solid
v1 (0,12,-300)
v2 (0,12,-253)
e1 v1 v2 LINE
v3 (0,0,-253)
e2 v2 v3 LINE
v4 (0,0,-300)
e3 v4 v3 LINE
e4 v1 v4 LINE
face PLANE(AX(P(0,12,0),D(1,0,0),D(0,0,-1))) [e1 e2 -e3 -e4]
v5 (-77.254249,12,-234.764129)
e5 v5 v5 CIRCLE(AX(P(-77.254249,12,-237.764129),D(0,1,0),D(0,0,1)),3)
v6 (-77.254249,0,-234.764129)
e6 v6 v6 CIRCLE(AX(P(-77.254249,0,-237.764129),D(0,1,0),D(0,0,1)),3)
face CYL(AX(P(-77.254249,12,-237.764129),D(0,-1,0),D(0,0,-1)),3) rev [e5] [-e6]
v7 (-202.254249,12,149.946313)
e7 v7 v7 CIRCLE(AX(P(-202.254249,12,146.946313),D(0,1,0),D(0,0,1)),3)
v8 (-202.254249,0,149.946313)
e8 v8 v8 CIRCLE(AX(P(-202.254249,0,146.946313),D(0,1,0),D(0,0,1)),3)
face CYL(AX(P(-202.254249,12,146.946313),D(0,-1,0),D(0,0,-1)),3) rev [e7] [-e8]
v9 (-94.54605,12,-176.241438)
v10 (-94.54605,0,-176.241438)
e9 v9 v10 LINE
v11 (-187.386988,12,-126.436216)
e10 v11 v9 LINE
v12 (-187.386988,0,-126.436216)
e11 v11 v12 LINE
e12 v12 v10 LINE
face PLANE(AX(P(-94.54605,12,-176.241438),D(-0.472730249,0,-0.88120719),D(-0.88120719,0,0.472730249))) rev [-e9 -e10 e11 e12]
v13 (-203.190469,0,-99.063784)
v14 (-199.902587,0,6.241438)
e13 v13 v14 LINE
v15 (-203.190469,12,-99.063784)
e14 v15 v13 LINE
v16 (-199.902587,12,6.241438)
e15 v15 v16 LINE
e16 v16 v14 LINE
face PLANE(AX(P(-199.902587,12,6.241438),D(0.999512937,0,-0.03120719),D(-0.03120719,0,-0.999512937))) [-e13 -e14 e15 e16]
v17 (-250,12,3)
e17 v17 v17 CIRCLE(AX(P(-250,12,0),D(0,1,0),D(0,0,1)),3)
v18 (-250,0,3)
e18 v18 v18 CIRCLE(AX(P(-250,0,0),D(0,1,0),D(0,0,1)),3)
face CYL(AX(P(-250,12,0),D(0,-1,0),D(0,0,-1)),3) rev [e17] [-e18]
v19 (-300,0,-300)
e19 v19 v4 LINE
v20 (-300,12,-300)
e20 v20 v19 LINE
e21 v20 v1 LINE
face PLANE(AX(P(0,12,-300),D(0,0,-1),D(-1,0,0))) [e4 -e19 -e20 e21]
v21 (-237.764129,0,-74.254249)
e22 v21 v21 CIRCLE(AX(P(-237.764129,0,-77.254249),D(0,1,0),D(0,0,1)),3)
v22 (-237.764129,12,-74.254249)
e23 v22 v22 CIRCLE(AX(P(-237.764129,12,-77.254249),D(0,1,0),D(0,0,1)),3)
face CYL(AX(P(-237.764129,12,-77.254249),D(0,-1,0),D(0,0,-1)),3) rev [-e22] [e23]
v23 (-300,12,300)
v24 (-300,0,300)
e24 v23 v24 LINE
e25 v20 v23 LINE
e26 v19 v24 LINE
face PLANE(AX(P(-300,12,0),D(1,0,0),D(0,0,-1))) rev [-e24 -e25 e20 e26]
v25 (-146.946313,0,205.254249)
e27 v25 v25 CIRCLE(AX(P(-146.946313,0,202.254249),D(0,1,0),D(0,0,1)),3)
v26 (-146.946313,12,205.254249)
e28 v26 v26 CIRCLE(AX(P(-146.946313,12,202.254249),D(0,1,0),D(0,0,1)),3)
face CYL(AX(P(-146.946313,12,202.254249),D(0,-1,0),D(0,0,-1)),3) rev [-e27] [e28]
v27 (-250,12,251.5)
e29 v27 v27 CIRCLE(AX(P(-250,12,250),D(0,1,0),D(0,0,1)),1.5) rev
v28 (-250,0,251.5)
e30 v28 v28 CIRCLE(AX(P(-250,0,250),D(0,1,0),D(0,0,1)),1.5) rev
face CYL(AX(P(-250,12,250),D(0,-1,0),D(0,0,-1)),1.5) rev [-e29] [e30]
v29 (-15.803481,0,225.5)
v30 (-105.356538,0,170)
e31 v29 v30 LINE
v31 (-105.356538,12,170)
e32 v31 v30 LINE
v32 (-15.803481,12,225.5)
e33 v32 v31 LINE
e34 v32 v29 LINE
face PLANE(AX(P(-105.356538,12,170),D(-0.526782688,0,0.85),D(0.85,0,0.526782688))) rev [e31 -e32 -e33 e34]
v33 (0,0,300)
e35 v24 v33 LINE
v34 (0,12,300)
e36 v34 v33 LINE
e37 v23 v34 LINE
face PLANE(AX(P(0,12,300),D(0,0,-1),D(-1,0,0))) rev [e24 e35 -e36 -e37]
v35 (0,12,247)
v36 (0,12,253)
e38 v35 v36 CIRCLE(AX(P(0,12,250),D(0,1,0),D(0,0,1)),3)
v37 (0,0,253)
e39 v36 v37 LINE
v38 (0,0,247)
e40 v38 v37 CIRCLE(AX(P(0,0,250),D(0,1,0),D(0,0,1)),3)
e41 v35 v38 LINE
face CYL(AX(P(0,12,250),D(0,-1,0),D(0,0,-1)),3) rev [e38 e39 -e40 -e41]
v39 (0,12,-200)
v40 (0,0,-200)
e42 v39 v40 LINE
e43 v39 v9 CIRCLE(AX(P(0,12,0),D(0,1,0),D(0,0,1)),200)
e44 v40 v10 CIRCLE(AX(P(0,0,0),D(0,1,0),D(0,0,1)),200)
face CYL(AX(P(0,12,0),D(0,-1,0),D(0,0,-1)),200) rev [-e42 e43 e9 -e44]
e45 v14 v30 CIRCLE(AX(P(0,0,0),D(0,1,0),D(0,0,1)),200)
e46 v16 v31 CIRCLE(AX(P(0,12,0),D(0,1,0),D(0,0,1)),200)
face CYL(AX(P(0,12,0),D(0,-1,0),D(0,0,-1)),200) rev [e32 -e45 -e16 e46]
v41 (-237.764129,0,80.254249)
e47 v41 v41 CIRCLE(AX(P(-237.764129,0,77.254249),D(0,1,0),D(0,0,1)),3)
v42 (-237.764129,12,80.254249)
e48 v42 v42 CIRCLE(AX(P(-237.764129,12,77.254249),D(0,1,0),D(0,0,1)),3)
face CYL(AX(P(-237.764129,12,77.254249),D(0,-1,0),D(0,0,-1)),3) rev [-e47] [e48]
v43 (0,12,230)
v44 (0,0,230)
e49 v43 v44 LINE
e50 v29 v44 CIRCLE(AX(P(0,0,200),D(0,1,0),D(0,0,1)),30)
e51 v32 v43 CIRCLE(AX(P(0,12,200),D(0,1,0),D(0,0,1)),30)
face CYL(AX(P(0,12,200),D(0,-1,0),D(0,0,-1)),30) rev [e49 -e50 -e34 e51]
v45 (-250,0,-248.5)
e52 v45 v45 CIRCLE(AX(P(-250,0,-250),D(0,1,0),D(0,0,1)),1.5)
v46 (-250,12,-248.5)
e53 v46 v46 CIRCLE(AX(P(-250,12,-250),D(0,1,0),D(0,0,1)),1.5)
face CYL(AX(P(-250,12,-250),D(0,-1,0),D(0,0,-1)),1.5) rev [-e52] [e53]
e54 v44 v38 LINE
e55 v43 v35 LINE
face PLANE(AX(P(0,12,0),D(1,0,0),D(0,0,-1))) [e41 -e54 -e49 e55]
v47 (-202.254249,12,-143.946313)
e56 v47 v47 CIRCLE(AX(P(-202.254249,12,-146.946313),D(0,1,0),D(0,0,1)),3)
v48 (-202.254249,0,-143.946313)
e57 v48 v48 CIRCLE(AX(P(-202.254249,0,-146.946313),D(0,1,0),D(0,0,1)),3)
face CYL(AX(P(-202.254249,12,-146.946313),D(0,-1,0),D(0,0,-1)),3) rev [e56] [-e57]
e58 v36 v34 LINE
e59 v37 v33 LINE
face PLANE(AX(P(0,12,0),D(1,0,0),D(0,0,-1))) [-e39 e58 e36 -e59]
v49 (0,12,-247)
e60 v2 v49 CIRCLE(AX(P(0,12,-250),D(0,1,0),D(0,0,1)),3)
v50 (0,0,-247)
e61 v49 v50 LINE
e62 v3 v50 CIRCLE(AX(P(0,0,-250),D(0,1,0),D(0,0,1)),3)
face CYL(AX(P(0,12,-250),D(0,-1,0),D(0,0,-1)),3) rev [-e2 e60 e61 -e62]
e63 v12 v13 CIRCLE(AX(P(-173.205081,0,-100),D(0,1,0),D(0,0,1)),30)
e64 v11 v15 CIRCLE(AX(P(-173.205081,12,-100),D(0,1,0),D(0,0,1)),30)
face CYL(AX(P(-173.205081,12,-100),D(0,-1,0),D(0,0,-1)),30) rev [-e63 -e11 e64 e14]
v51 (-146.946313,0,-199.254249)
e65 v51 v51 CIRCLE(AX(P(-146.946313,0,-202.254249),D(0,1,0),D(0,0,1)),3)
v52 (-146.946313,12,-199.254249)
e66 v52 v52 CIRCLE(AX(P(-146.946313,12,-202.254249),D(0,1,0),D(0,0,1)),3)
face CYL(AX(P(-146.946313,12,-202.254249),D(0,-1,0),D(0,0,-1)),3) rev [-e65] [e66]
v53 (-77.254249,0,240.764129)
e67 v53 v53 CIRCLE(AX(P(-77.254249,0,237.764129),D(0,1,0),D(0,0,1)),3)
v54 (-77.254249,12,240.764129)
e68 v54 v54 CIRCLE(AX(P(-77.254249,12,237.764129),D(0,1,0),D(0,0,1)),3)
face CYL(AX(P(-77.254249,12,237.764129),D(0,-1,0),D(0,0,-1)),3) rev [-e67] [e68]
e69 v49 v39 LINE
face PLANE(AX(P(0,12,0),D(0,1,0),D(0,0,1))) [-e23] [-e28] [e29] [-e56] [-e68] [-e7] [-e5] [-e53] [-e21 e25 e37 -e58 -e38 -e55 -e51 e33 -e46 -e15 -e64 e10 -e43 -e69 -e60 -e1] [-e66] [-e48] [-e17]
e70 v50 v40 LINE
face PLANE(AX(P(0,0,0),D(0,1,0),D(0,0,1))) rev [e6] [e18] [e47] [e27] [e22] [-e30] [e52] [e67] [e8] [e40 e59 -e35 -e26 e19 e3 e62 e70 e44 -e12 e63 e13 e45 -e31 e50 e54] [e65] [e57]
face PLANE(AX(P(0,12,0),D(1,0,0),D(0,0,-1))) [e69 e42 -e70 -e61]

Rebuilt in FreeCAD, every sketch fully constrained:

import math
import FreeCAD as App
import Part
import Sketcher

V = App.Vector

doc = App.newDocument("Part")
params = doc.addObject("Spreadsheet::Sheet", "Params")
for row, (alias, value) in enumerate([
    ("sketch1_diameter", "6 mm"),
    ("sketch1_diameter2", "3 mm"),
    ("sketch1_radius", "30 mm"),
    ("sketch1_radius2", "200 mm"),
    ("sketch1_width", "300 mm"),
    ("pad1_length", "12 mm"),
], start=1):
    params.set(f"A{row}", alias)
    params.set(f"B{row}", "=" + value)
    params.setAlias(f"B{row}", alias)

body = doc.addObject("PartDesign::Body", "Body")

# Sketch on XZ plane
sketch1 = body.newObject("Sketcher::SketchObject", "Sketch")
sketch1.AttachmentSupport = (doc.getObject("XZ_Plane"), [""])
sketch1.MapMode = "FlatFace"
sketch1.addGeometry(Part.LineSegment(V(-199.902587, 6.241438, 0), V(-203.190469, -99.063784, 0)), False)
sketch1.addGeometry(Part.ArcOfCircle(Part.Circle(V(-173.205081, -100, 0), V(0, 0, 1), 30), math.radians(178.211669), math.radians(241.788331)), False)
sketch1.addGeometry(Part.LineSegment(V(-187.386988, -126.436216, 0), V(-94.54605, -176.241438, 0)), False)
sketch1.addGeometry(Part.ArcOfCircle(Part.Circle(V(0, 0, 0), V(0, 0, 1), 200), math.radians(-118.211669), math.radians(-90)), False)
sketch1.addGeometry(Part.LineSegment(V(0, -200, 0), V(0, -247, 0)), False)
sketch1.addGeometry(Part.ArcOfCircle(Part.Circle(V(0, -250, 0), V(0, 0, 1), 3), math.radians(90), math.radians(270)), False)
sketch1.addGeometry(Part.LineSegment(V(0, -253, 0), V(0, -300, 0)), False)
sketch1.addGeometry(Part.LineSegment(V(0, -300, 0), V(-300, -300, 0)), False)
sketch1.addGeometry(Part.LineSegment(V(-300, -300, 0), V(-300, 300, 0)), False)
sketch1.addGeometry(Part.LineSegment(V(-300, 300, 0), V(0, 300, 0)), False)
sketch1.addGeometry(Part.LineSegment(V(0, 300, 0), V(0, 253, 0)), False)
sketch1.addGeometry(Part.ArcOfCircle(Part.Circle(V(0, 250, 0), V(0, 0, 1), 3), math.radians(90), math.radians(270)), False)
sketch1.addGeometry(Part.LineSegment(V(0, 247, 0), V(0, 230, 0)), False)
sketch1.addGeometry(Part.ArcOfCircle(Part.Circle(V(0, 200, 0), V(0, 0, 1), 30), math.radians(90), math.radians(121.788331)), False)
sketch1.addGeometry(Part.LineSegment(V(-15.803481, 225.5, 0), V(-105.356538, 170, 0)), False)
sketch1.addGeometry(Part.ArcOfCircle(Part.Circle(V(0, 0, 0), V(0, 0, 1), 200), math.radians(121.788331), math.radians(178.211669)), False)
sketch1.addGeometry(Part.Circle(V(-77.254249, 237.764129, 0), V(0, 0, 1), 3), False)
sketch1.addGeometry(Part.Circle(V(-146.946313, 202.254249, 0), V(0, 0, 1), 3), False)
sketch1.addGeometry(Part.Circle(V(-202.254249, 146.946313, 0), V(0, 0, 1), 3), False)
sketch1.addGeometry(Part.Circle(V(-250, 250, 0), V(0, 0, 1), 1.5), False)
sketch1.addGeometry(Part.Circle(V(-237.764129, 77.254249, 0), V(0, 0, 1), 3), False)
sketch1.addGeometry(Part.Circle(V(-250, 0, 0), V(0, 0, 1), 3), False)
sketch1.addGeometry(Part.Circle(V(-77.254249, -237.764129, 0), V(0, 0, 1), 3), False)
sketch1.addGeometry(Part.Circle(V(-146.946313, -202.254249, 0), V(0, 0, 1), 3), False)
sketch1.addGeometry(Part.Circle(V(-237.764129, -77.254249, 0), V(0, 0, 1), 3), False)
sketch1.addGeometry(Part.Circle(V(-202.254249, -146.946313, 0), V(0, 0, 1), 3), False)
sketch1.addGeometry(Part.Circle(V(-250, -250, 0), V(0, 0, 1), 1.5), False)
sketch1.addConstraint(Sketcher.Constraint("Tangent", 0, 2, 1, 1))
sketch1.addConstraint(Sketcher.Constraint("Tangent", 1, 2, 2, 1))
sketch1.addConstraint(Sketcher.Constraint("Tangent", 2, 2, 3, 1))
sketch1.addConstraint(Sketcher.Constraint("Coincident", 3, 2, 4, 1))
sketch1.addConstraint(Sketcher.Constraint("Coincident", 4, 2, 5, 1))
sketch1.addConstraint(Sketcher.Constraint("Coincident", 5, 2, 6, 1))
sketch1.addConstraint(Sketcher.Constraint("Coincident", 6, 2, 7, 1))
sketch1.addConstraint(Sketcher.Constraint("Coincident", 7, 2, 8, 1))
sketch1.addConstraint(Sketcher.Constraint("Coincident", 8, 2, 9, 1))
sketch1.addConstraint(Sketcher.Constraint("Coincident", 9, 2, 10, 1))
sketch1.addConstraint(Sketcher.Constraint("Coincident", 10, 2, 11, 1))
sketch1.addConstraint(Sketcher.Constraint("Coincident", 11, 2, 12, 1))
sketch1.addConstraint(Sketcher.Constraint("Coincident", 12, 2, 13, 1))
sketch1.addConstraint(Sketcher.Constraint("Tangent", 13, 2, 14, 1))
sketch1.addConstraint(Sketcher.Constraint("Tangent", 14, 2, 15, 1))
sketch1.addConstraint(Sketcher.Constraint("Tangent", 15, 2, 0, 1))
sketch1.addConstraint(Sketcher.Constraint("Vertical", 4))
sketch1.addConstraint(Sketcher.Constraint("Vertical", 6))
sketch1.addConstraint(Sketcher.Constraint("Horizontal", 7))
sketch1.addConstraint(Sketcher.Constraint("Vertical", 8))
sketch1.addConstraint(Sketcher.Constraint("Horizontal", 9))
sketch1.addConstraint(Sketcher.Constraint("Vertical", 10))
sketch1.addConstraint(Sketcher.Constraint("Vertical", 12))
sketch1.addConstraint(Sketcher.Constraint("Coincident", 3, 3, -1, 1))
sketch1.addConstraint(Sketcher.Constraint("Coincident", 15, 3, -1, 1))
sketch1.addConstraint(Sketcher.Constraint("Equal", 5, 11))
sketch1.addConstraint(Sketcher.Constraint("Equal", 1, 13))
sketch1.addConstraint(Sketcher.Constraint("Equal", 3, 15))
sketch1.addConstraint(Sketcher.Constraint("Equal", 11, 16))
sketch1.addConstraint(Sketcher.Constraint("Equal", 16, 17))
sketch1.addConstraint(Sketcher.Constraint("Equal", 17, 18))
sketch1.addConstraint(Sketcher.Constraint("Equal", 18, 20))
sketch1.addConstraint(Sketcher.Constraint("Equal", 20, 21))
sketch1.addConstraint(Sketcher.Constraint("Equal", 21, 22))
sketch1.addConstraint(Sketcher.Constraint("Equal", 22, 23))
sketch1.addConstraint(Sketcher.Constraint("Equal", 23, 24))
sketch1.addConstraint(Sketcher.Constraint("Equal", 24, 25))
sketch1.addConstraint(Sketcher.Constraint("Equal", 19, 26))
sketch1.addConstraint(Sketcher.Constraint("Symmetric", 5, 3, 11, 3, -1, 1))
sketch1.addConstraint(Sketcher.Constraint("Symmetric", 6, 2, 9, 2, -1, 1))
sketch1.addConstraint(Sketcher.Constraint("Symmetric", 16, 3, 22, 3, -1))
sketch1.addConstraint(Sketcher.Constraint("Symmetric", 17, 3, 23, 3, -1))
sketch1.addConstraint(Sketcher.Constraint("Symmetric", 20, 3, 24, 3, -1))
sketch1.addConstraint(Sketcher.Constraint("Symmetric", 18, 3, 25, 3, -1))
sketch1.addConstraint(Sketcher.Constraint("Symmetric", 19, 3, 26, 3, -1))
sketch1.addConstraint(Sketcher.Constraint("PointOnObject", 5, 3, -2))
sketch1.addConstraint(Sketcher.Constraint("PointOnObject", 13, 3, -2))
sketch1.addConstraint(Sketcher.Constraint("PointOnObject", 21, 3, -1))
sketch1.addConstraint(Sketcher.Constraint("PointOnObject", 3, 2, -2))
sketch1.addConstraint(Sketcher.Constraint("PointOnObject", 5, 2, -2))
sketch1.addConstraint(Sketcher.Constraint("PointOnObject", 11, 2, -2))
sketch1.addConstraint(Sketcher.Constraint("Horizontal", 11, 3, 19, 3))
sketch1.addConstraint(Sketcher.Constraint("Vertical", 19, 3, 21, 3))
sketch1.addConstraint(Sketcher.Constraint("Equal", 4, 6))
sketch1.addConstraint(Sketcher.Constraint("Equal", 2, 14))
sketch1.addConstraint(Sketcher.Constraint("Diameter", 16, 6.0))
sketch1.addConstraint(Sketcher.Constraint("Diameter", 19, 3.0))
sketch1.addConstraint(Sketcher.Constraint("Radius", 1, 30.0))
sketch1.addConstraint(Sketcher.Constraint("Radius", 3, 200.0))
sketch1.addConstraint(Sketcher.Constraint("DistanceX", 7, 2, 7, 1, 300.0))
sketch1.addConstraint(Sketcher.Constraint("DistanceY", 4, 2, 4, 1, 47.0))
sketch1.addConstraint(Sketcher.Constraint("DistanceY", 12, 2, 12, 1, 17.0))
sketch1.addConstraint(Sketcher.Constraint("DistanceY", 1, 3, -1, 1, 100.0))
sketch1.addConstraint(Sketcher.Constraint("DistanceX", 19, 3, -1, 1, 250.0))
sketch1.addConstraint(Sketcher.Constraint("DistanceX", 18, 3, 16, 3, 125.0))
sketch1.addConstraint(Sketcher.Constraint("DistanceY", 20, 3, 17, 3, 125.0))
sketch1.addConstraint(Sketcher.Constraint("DistanceX", 2, 2, 22, 3, 17.291801))
sketch1.addConstraint(Sketcher.Constraint("DistanceY", -1, 1, 16, 3, 237.764129))
sketch1.addConstraint(Sketcher.Constraint("DistanceY", -1, 1, 17, 3, 202.254249))
sketch1.addConstraint(Sketcher.Constraint("DistanceX", 20, 3, -1, 1, 237.764129))
sketch1.addConstraint(Sketcher.Constraint("DistanceY", 25, 3, 0, 2, 47.882529))
sketch1.addConstraint(Sketcher.Constraint("DistanceX", 17, 3, -1, 1, 146.946313))
sketch1.setExpression("Constraints[55]", "Params.sketch1_diameter")
sketch1.setExpression("Constraints[56]", "Params.sketch1_diameter2")
sketch1.setExpression("Constraints[57]", "Params.sketch1_radius")
sketch1.setExpression("Constraints[58]", "Params.sketch1_radius2")
sketch1.setExpression("Constraints[59]", "Params.sketch1_width")
pad1 = body.newObject("PartDesign::Pad", "Pad")
pad1.Profile = sketch1
pad1.setExpression("Length", "Params.pad1_length")
pad1.Reversed = True

doc.recompute()
